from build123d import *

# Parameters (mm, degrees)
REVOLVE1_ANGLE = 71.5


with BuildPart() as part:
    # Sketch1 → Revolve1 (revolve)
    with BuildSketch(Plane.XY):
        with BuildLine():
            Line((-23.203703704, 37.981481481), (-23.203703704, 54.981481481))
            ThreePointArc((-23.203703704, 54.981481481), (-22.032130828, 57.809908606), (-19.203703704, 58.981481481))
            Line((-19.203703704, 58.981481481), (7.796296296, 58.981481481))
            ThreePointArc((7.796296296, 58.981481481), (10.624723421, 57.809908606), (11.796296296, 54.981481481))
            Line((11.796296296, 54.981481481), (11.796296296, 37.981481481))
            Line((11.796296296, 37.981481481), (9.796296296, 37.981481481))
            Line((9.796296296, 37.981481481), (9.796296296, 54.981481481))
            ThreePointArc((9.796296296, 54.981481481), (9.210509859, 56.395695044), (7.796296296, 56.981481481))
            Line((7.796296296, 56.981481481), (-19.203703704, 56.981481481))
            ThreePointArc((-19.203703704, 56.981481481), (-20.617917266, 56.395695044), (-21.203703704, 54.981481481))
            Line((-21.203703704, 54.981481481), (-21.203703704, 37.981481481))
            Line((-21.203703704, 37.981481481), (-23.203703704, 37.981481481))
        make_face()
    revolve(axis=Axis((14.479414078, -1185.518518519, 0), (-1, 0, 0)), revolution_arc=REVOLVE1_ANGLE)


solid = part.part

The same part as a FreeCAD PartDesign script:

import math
import FreeCAD as App
import Part
import Sketcher
Q = App.Units.Quantity

doc = App.newDocument("Part")
body = doc.addObject("PartDesign::Body", "Body")

# Sketch on XY plane
sketch1 = body.newObject("Sketcher::SketchObject", "Sketch")
sketch1.AttachmentSupport = (doc.getObject("XY_Plane"), [""])
sketch1.MapMode = "FlatFace"
sketch1.addGeometry([
    Part.LineSegment(App.Vector(-23.2, 55, 0), App.Vector(-23.2, 38, 0)),  # 0
    Part.LineSegment(App.Vector(-23.2, 38, 0), App.Vector(-21.2, 38, 0)),  # 1
    Part.LineSegment(App.Vector(-21.2, 38, 0), App.Vector(-21.2, 55, 0)),  # 2
    Part.ArcOfCircle(Part.Circle(App.Vector(-19.2, 55, 0), App.Vector(0, 0, 1), 2), math.radians(90), math.radians(180)),  # 3
    Part.LineSegment(App.Vector(-19.2, 57, 0), App.Vector(7.8, 57, 0)),  # 4
    Part.ArcOfCircle(Part.Circle(App.Vector(7.8, 55, 0), App.Vector(0, 0, 1), 2), math.radians(0), math.radians(90)),  # 5
    Part.LineSegment(App.Vector(9.8, 55, 0), App.Vector(9.8, 38, 0)),  # 6
    Part.LineSegment(App.Vector(9.8, 38, 0), App.Vector(11.8, 38, 0)),  # 7
    Part.LineSegment(App.Vector(11.8, 38, 0), App.Vector(11.8, 55, 0)),  # 8
    Part.ArcOfCircle(Part.Circle(App.Vector(7.8, 55, 0), App.Vector(0, 0, 1), 4), math.radians(0), math.radians(90)),  # 9
    Part.LineSegment(App.Vector(7.8, 59, 0), App.Vector(-19.2, 59, 0)),  # 10
    Part.ArcOfCircle(Part.Circle(App.Vector(-19.2, 55, 0), App.Vector(0, 0, 1), 4), math.radians(90), math.radians(180)),  # 11
], False)
sketch1.addGeometry(Part.LineSegment(App.Vector(11.8, -1185.5, 0), App.Vector(-23.2, -1185.5, 0)), True)  # axis
sketch1.addConstraint([
    Sketcher.Constraint("Coincident", 0, 2, 1, 1),
    Sketcher.Constraint("Coincident", 1, 2, 2, 1),
    Sketcher.Constraint("Tangent", 2, 2, 3, 2),
    Sketcher.Constraint("Tangent", 3, 1, 4, 1),
    Sketcher.Constraint("Tangent", 4, 2, 5, 2),
    Sketcher.Constraint("Tangent", 5, 1, 6, 1),
    Sketcher.Constraint("Coincident", 6, 2, 7, 1),
    Sketcher.Constraint("Coincident", 7, 2, 8, 1),
    Sketcher.Constraint("Tangent", 8, 2, 9, 1),
    Sketcher.Constraint("Tangent", 9, 2, 10, 1),
    Sketcher.Constraint("Tangent", 10, 2, 11, 1),
    Sketcher.Constraint("Tangent", 11, 2, 0, 1),
    Sketcher.Constraint("Vertical", 0),
    Sketcher.Constraint("Horizontal", 1),
    Sketcher.Constraint("Vertical", 2),
    Sketcher.Constraint("Horizontal", 4),
    Sketcher.Constraint("Vertical", 6),
    Sketcher.Constraint("Horizontal", 7),
    Sketcher.Constraint("Vertical", 8),
    Sketcher.Constraint("Horizontal", 10),
    Sketcher.Constraint("Horizontal", 12),
    Sketcher.Constraint("Coincident", 9, 3, 5, 3),
    Sketcher.Constraint("Coincident", 11, 3, 3, 3),
    Sketcher.Constraint("Equal", 3, 5),
    Sketcher.Constraint("Horizontal", 1, 2, 6, 2),
    Sketcher.Constraint("Vertical", 8, 2, 12, 1),
    Sketcher.Constraint("Vertical", 11, 2, 12, 2),
    Sketcher.Constraint("Radius", 3, Q("2 mm")),
    Sketcher.Constraint("Radius", 9, Q("4 mm")),
    Sketcher.Constraint("DistanceX", 4, 1, 4, 2, Q("27 mm")),
    Sketcher.Constraint("DistanceY", 0, 2, 0, 1, Q("17 mm")),
    Sketcher.Constraint("DistanceY", 12, 1, 7, 2, Q("1223.5 mm")),
    Sketcher.Constraint("DistanceY", -1, 1, 3, 3, Q("54.981481 mm")),
    Sketcher.Constraint("DistanceX", 3, 3, -1, 1, Q("19.203704 mm")),
])
revolution = body.newObject("PartDesign::Revolution", "Revolution")
revolution.Profile = sketch1
revolution.ReferenceAxis = (sketch1, ["Axis0"])
revolution.Angle = 71.5

doc.recompute()
